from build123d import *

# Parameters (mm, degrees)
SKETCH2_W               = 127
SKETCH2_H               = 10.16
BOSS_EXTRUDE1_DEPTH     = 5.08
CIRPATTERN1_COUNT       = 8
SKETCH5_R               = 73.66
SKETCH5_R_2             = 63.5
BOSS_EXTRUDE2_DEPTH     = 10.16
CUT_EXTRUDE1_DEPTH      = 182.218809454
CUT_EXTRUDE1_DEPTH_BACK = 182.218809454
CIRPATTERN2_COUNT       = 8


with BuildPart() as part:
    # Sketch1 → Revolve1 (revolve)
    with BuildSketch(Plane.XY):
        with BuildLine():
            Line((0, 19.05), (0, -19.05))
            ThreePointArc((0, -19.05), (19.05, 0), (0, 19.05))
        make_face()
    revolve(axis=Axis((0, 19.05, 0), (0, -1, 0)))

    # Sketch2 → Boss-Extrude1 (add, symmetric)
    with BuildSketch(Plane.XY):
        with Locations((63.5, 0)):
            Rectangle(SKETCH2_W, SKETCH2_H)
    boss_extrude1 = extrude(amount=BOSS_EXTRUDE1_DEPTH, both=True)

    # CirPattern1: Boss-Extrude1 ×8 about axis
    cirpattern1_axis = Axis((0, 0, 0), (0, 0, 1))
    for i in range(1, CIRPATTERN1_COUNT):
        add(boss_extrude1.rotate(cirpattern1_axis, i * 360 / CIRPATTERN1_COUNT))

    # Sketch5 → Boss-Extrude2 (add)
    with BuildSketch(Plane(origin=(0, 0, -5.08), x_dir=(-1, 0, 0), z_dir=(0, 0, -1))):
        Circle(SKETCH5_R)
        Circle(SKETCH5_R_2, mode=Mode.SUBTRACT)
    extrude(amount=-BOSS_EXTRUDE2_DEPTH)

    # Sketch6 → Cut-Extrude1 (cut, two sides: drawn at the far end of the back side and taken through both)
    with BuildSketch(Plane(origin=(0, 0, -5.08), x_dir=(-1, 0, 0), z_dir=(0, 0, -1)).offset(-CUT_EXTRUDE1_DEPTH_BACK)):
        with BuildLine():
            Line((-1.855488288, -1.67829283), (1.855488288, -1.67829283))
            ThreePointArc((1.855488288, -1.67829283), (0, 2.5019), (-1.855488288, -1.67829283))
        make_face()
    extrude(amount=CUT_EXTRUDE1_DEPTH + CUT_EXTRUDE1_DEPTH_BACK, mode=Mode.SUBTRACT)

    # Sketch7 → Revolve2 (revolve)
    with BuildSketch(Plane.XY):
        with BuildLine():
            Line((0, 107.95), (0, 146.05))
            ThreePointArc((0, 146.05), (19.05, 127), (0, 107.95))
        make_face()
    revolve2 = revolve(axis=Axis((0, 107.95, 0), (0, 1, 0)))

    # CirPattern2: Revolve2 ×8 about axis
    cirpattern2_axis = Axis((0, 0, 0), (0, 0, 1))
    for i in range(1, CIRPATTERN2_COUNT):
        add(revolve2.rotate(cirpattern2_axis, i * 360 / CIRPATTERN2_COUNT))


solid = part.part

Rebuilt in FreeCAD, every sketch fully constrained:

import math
import FreeCAD as App
import Part
import Sketcher
from FreeCAD import Vector
Q = App.Units.Quantity

doc = App.newDocument("Part")
body = doc.addObject("PartDesign::Body", "Body")

# Sketch on XY plane
sketch1 = doc.addObject("Sketcher::SketchObject", "Sketch")
body.addObject(sketch1)
sketch1.AttachmentSupport = (doc.XY_Plane, [""])
sketch1.MapMode = "FlatFace"
sketch1.addGeometry([
    Part.LineSegment(Vector(0, 19, 0), Vector(0, -19, 0)),
    Part.ArcOfCircle(Part.Circle(Vector(0, 0, 0), Vector(0, 0, 1), 19), math.radians(-90), math.radians(90)),
], False)
sketch1.addConstraint([
    Sketcher.Constraint("Coincident", 0, 1, 1, 2),
    Sketcher.Constraint("Coincident", 1, 1, 0, 2),
    Sketcher.Constraint("Vertical", 0),
    Sketcher.Constraint("Coincident", 1, 3, -1, 1),
    Sketcher.Constraint("PointOnObject", 0, 1, -2),
    Sketcher.Constraint("Radius", 1, Q("0.75 in")),
])
revolution = doc.addObject("PartDesign::Revolution", "Revolution")
body.addObject(revolution)
revolution.Profile = sketch1
revolution.ReferenceAxis = (sketch1, ["V_Axis"])
revolution.Angle = 360

# Sketch on XY plane
sketch2 = doc.addObject("Sketcher::SketchObject", "Sketch001")
body.addObject(sketch2)
sketch2.AttachmentSupport = (doc.XY_Plane, [""])
sketch2.MapMode = "FlatFace"
sketch2.addGeometry([
    Part.LineSegment(Vector(0, 5, 0), Vector(0, -5, 0)),
    Part.LineSegment(Vector(0, -5, 0), Vector(127, -5, 0)),
    Part.LineSegment(Vector(127, -5, 0), Vector(127, 5, 0)),
    Part.LineSegment(Vector(127, 5, 0), Vector(0, 5, 0)),
], False)
sketch2.addConstraint([
    Sketcher.Constraint("Coincident", 0, 2, 1, 1),
    Sketcher.Constraint("Coincident", 1, 2, 2, 1),
    Sketcher.Constraint("Coincident", 2, 2, 3, 1),
    Sketcher.Constraint("Coincident", 3, 2, 0, 1),
    Sketcher.Constraint("Vertical", 0),
    Sketcher.Constraint("Horizontal", 1),
    Sketcher.Constraint("Vertical", 2),
    Sketcher.Constraint("Horizontal", 3),
    Sketcher.Constraint("Symmetric", 0, 2, 3, 2, -1, 1),
    Sketcher.Constraint("DistanceX", 1, 1, 1, 2, Q("5 in")),
    Sketcher.Constraint("DistanceY", 0, 2, 0, 1, Q("0.4 in")),
])
pad1 = doc.addObject("PartDesign::Pad", "Pad")
body.addObject(pad1)
pad1.Profile = sketch2
pad1.Length = Q("0.4 in")
pad1.Midplane = True
doc.recompute()

polarpattern = doc.addObject("PartDesign::PolarPattern", "PolarPattern")
body.addObject(polarpattern)
polarpattern.Originals = [pad1]
polarpattern.Axis = (doc.Z_Axis, [""])
polarpattern.Angle = 360
polarpattern.Occurrences = 8
body.Tip = polarpattern

# Sketch on XY plane
sketch3 = doc.addObject("Sketcher::SketchObject", "Sketch002")
body.addObject(sketch3)
sketch3.AttachmentSupport = (doc.XY_Plane, [""])
sketch3.MapMode = "FlatFace"
sketch3.AttachmentOffset = App.Placement(Vector(0, 0, -0.2 * 25.4), App.Rotation())
sketch3.addGeometry([
    Part.Circle(Vector(0, 0, 0), Vector(0, 0, 1), 74),
    Part.Circle(Vector(0, 0, 0), Vector(0, 0, 1), 64),
], False)
sketch3.addConstraint([
    Sketcher.Constraint("Coincident", 0, 3, -1, 1),
    Sketcher.Constraint("Coincident", 1, 3, -1, 1),
    Sketcher.Constraint("Diameter", 1, Q("5 in")),
    Sketcher.Constraint("Diameter", 0, Q("5.8 in")),
])
pad2 = doc.addObject("PartDesign::Pad", "Pad001")
body.addObject(pad2)
pad2.Profile = sketch3
pad2.Length = Q("0.4 in")

# Sketch on XY plane
sketch4 = doc.addObject("Sketcher::SketchObject", "Sketch003")
body.addObject(sketch4)
sketch4.AttachmentSupport = (doc.XY_Plane, [""])
sketch4.MapMode = "FlatFace"
sketch4.AttachmentOffset = App.Placement(Vector(0, 0, -0.2 * 25.4), App.Rotation())
sketch4.addGeometry([
    Part.LineSegment(Vector(1.9, -1.7, 0), Vector(-1.9, -1.7, 0)),
    Part.ArcOfCircle(Part.Circle(Vector(0, 0, 0), Vector(0, 0, 1), 2.5), math.radians(-42), math.radians(222)),
], False)
sketch4.addConstraint([
    Sketcher.Constraint("Coincident", 0, 1, 1, 1),
    Sketcher.Constraint("Coincident", 1, 2, 0, 2),
    Sketcher.Constraint("Horizontal", 0),
    Sketcher.Constraint("Coincident", 1, 3, -1, 1),
    Sketcher.Constraint("Radius", 1, Q("0.0985 in")),
    Sketcher.Constraint("DistanceX", 0, 2, 0, 1, 3.710977),
])
pocket1 = doc.addObject("PartDesign::Pocket", "Pocket")
body.addObject(pocket1)
pocket1.Profile = sketch4
pocket1.Type = "ThroughAll"
pocket1.Midplane = True

# Sketch on XY plane
sketch5 = doc.addObject("Sketcher::SketchObject", "Sketch004")
body.addObject(sketch5)
sketch5.AttachmentSupport = (doc.XY_Plane, [""])
sketch5.MapMode = "FlatFace"
sketch5.addGeometry([
    Part.LineSegment(Vector(0, 146, 0), Vector(0, 108, 0)),
    Part.ArcOfCircle(Part.Circle(Vector(0, 127, 0), Vector(0, 0, 1), 19), math.radians(-90), math.radians(90)),
], False)
sketch5.addConstraint([
    Sketcher.Constraint("Coincident", 0, 1, 1, 2),
    Sketcher.Constraint("Coincident", 1, 1, 0, 2),
    Sketcher.Constraint("Vertical", 0),
    Sketcher.Constraint("PointOnObject", 1, 3, -2),
    Sketcher.Constraint("PointOnObject", 0, 1, -2),
    Sketcher.Constraint("Radius", 1, Q("0.75 in")),
    Sketcher.Constraint("DistanceY", -1, 1, 1, 3, Q("5 in")),
])
revolution2 = doc.addObject("PartDesign::Revolution", "Revolution001")
body.addObject(revolution2)
revolution2.Profile = sketch5
revolution2.ReferenceAxis = (sketch5, ["V_Axis"])
revolution2.Angle = 360
doc.recompute()

polarpattern2 = doc.addObject("PartDesign::PolarPattern", "PolarPattern001")
body.addObject(polarpattern2)
polarpattern2.Originals = [revolution2]
polarpattern2.Axis = (doc.Z_Axis, [""])
polarpattern2.Angle = 360
polarpattern2.Occurrences = 8
body.Tip = polarpattern2

doc.recompute()
